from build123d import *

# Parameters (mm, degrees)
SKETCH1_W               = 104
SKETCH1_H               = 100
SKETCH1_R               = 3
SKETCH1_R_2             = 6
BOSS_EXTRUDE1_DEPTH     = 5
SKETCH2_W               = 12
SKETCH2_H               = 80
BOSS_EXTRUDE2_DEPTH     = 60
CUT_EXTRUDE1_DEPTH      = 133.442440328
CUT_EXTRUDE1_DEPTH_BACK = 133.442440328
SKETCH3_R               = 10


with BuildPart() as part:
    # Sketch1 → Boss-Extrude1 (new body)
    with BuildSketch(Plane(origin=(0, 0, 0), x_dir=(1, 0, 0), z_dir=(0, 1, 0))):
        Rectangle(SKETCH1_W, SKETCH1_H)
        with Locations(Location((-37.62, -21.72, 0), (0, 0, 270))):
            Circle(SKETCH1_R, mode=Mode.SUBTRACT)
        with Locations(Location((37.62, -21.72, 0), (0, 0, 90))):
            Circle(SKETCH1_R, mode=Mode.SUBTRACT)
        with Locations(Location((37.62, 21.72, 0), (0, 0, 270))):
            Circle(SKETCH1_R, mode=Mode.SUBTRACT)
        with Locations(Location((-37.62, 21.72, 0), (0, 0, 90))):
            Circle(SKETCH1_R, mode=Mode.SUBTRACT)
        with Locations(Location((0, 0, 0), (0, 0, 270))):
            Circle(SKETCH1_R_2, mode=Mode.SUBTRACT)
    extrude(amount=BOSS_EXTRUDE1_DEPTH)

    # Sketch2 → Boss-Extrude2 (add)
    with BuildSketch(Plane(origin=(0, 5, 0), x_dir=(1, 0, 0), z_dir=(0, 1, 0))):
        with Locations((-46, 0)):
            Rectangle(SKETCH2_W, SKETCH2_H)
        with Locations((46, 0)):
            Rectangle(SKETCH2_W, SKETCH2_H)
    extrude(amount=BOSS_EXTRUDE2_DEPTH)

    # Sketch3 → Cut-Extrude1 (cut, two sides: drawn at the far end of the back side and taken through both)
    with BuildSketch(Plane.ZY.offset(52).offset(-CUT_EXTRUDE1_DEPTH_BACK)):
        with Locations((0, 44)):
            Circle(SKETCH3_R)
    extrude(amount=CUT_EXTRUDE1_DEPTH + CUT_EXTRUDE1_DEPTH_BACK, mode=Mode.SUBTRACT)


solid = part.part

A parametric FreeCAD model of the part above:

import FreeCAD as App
import Part
import Sketcher

V = App.Vector
Q = App.Units.Quantity


def add_polygon(sketch, points):
    """Adds a closed chain of lines whose ends are joined by coincident constraints."""
    first, n = sketch.GeometryCount, len(points)
    for a, b in zip(points, points[1:] + points[:1]):
        sketch.addGeometry(Part.LineSegment(App.Vector(*a, 0), App.Vector(*b, 0)), False)
    for i in range(n):
        sketch.addConstraint(Sketcher.Constraint("Coincident", first + i, 2, first + (i + 1) % n, 1))

doc = App.newDocument("Part")
params = doc.addObject("Spreadsheet::Sheet", "Params")
for row, (alias, value) in enumerate([
    ("sketch1_diameter", "6 mm"),
    ("sketch1_diameter2", "12 mm"),
    ("sketch1_width", "104 mm"),
    ("sketch1_height", "100 mm"),
    ("pad1_length", "5 mm"),
    ("sketch2_width", "12 mm"),
    ("sketch2_height", "80 mm"),
    ("pad2_length", "60 mm"),
    ("sketch3_diameter", "20 mm"),
], start=1):
    params.set(f"A{row}", alias)
    params.set(f"B{row}", "=" + value)
    params.setAlias(f"B{row}", alias)

body = doc.addObject("PartDesign::Body", "Body")

# Sketch on XZ plane
sketch1 = body.newObject("Sketcher::SketchObject", "Sketch")
sketch1.AttachmentSupport = (doc.getObject("XZ_Plane"), [""])
sketch1.MapMode = "FlatFace"
add_polygon(sketch1, [(-52, -50), (-52, 50), (52, 50), (52, -50)])  # lines 0-3
sketch1.addGeometry(Part.Circle(V(-37.6, 21.7, 0), V(0, 0, 1), 3), False)  # 4
sketch1.addGeometry(Part.Circle(V(37.6, 21.7, 0), V(0, 0, 1), 3), False)  # 5
sketch1.addGeometry(Part.Circle(V(0, 0, 0), V(0, 0, 1), 6), False)  # 6
sketch1.addGeometry(Part.Circle(V(-37.6, -21.7, 0), V(0, 0, 1), 3), False)  # 7
sketch1.addGeometry(Part.Circle(V(37.6, -21.7, 0), V(0, 0, 1), 3), False)  # 8
sketch1.addConstraint([
    Sketcher.Constraint("Vertical", 0),
    Sketcher.Constraint("Horizontal", 1),
    Sketcher.Constraint("Vertical", 2),
    Sketcher.Constraint("Horizontal", 3),
    Sketcher.Constraint("Coincident", 6, 3, -1, 1),
    Sketcher.Constraint("Equal", 4, 5),
    Sketcher.Constraint("Equal", 5, 7),
    Sketcher.Constraint("Equal", 7, 8),
    Sketcher.Constraint("Symmetric", 5, 3, 7, 3, -1, 1),
    Sketcher.Constraint("Symmetric", 4, 3, 8, 3, -1, 1),
    Sketcher.Constraint("Symmetric", 0, 2, 2, 2, -1, 1),
    Sketcher.Constraint("Symmetric", 4, 3, 5, 3, -2),
    Sketcher.Constraint("Diameter", 4, Q("6 mm")),
    Sketcher.Constraint("Diameter", 6, Q("12 mm")),
    Sketcher.Constraint("DistanceX", 1, 1, 1, 2, Q("104 mm")),
    Sketcher.Constraint("DistanceY", 0, 1, 0, 2, Q("100 mm")),
    Sketcher.Constraint("DistanceX", 4, 3, -1, 1, Q("37.62 mm")),
    Sketcher.Constraint("DistanceY", -1, 1, 4, 3, Q("21.72 mm")),
])
sketch1.setExpression("Constraints[16]", "Params.sketch1_diameter")
sketch1.setExpression("Constraints[17]", "Params.sketch1_diameter2")
sketch1.setExpression("Constraints[18]", "Params.sketch1_width")
sketch1.setExpression("Constraints[19]", "Params.sketch1_height")
pad1 = body.newObject("PartDesign::Pad", "Pad")
pad1.Profile = sketch1
pad1.setExpression("Length", "Params.pad1_length")
pad1.Reversed = True

# Sketch on XZ plane
sketch2 = body.newObject("Sketcher::SketchObject", "Sketch001")
sketch2.AttachmentSupport = (doc.getObject("XZ_Plane"), [""])
sketch2.MapMode = "FlatFace"
sketch2.AttachmentOffset = App.Placement(V(0, 0, -5), App.Rotation())
add_polygon(sketch2, [(-52, -40), (-52, 40), (-40, 40), (-40, -40)])  # lines 0-3
add_polygon(sketch2, [(40, -40), (40, 40), (52, 40), (52, -40)])  # lines 4-7
sketch2.addConstraint([
    Sketcher.Constraint("Vertical", 0),
    Sketcher.Constraint("Horizontal", 1),
    Sketcher.Constraint("Vertical", 2),
    Sketcher.Constraint("Horizontal", 3),
    Sketcher.Constraint("Vertical", 4),
    Sketcher.Constraint("Horizontal", 5),
    Sketcher.Constraint("Vertical", 6),
    Sketcher.Constraint("Horizontal", 7),
    Sketcher.Constraint("Symmetric", 2, 2, 4, 2, -1, 1),
    Sketcher.Constraint("Symmetric", 0, 2, 6, 2, -1, 1),
    Sketcher.Constraint("Horizontal", 1, 2, 4, 2),
    Sketcher.Constraint("DistanceX", 1, 1, 1, 2, Q("12 mm")),
    Sketcher.Constraint("DistanceY", 0, 1, 0, 2, Q("80 mm")),
    Sketcher.Constraint("DistanceX", 0, 2, -1, 1, Q("52 mm")),
])
sketch2.setExpression("Constraints[19]", "Params.sketch2_width")
sketch2.setExpression("Constraints[20]", "Params.sketch2_height")
pad2 = body.newObject("PartDesign::Pad", "Pad001")
pad2.Profile = sketch2
pad2.setExpression("Length", "Params.pad2_length")
pad2.Reversed = True

# Sketch on YZ plane
sketch3 = body.newObject("Sketcher::SketchObject", "Sketch002")
sketch3.AttachmentSupport = (doc.getObject("YZ_Plane"), [""])
sketch3.MapMode = "FlatFace"
sketch3.AttachmentOffset = App.Placement(V(0, 0, -52), App.Rotation())
sketch3.addGeometry(Part.Circle(V(44, 0, 0), V(0, 0, 1), 10), False)
sketch3.addConstraint([
    Sketcher.Constraint("PointOnObject", 0, 3, -1),
    Sketcher.Constraint("Diameter", 0, Q("20 mm")),
    Sketcher.Constraint("DistanceX", -1, 1, 0, 3, Q("44 mm")),
])
sketch3.setExpression("Constraints[1]", "Params.sketch3_diameter")
pocket1 = body.newObject("PartDesign::Pocket", "Pocket")
pocket1.Profile = sketch3
pocket1.Type = "ThroughAll"
pocket1.Midplane = True

doc.recompute()
